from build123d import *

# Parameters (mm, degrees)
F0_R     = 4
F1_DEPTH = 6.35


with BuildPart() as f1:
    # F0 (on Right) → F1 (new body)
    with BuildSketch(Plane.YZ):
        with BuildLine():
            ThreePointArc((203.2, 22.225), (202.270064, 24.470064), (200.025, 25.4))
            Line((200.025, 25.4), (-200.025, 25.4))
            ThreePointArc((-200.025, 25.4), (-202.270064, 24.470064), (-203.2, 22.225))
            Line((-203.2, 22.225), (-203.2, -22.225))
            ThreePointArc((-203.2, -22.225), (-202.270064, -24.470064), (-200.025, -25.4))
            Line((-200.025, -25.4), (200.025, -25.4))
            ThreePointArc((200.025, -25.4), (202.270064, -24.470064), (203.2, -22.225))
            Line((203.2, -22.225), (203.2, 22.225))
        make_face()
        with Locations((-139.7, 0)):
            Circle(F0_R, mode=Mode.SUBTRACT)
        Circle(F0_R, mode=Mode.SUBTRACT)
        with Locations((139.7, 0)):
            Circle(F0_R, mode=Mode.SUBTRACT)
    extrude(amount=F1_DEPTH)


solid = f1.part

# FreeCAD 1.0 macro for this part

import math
import FreeCAD as App
import Part
import Sketcher
from FreeCAD import Vector
Q = App.Units.Quantity

doc = App.newDocument("Part")
body = doc.addObject("PartDesign::Body", "Body")

sketch1 = body.newObject("Sketcher::SketchObject", "Sketch")
sketch1.AttachmentSupport = (doc.getObject("YZ_Plane"), [""])
sketch1.MapMode = "FlatFace"
sketch1.addGeometry(Part.ArcOfCircle(Part.Circle(Vector(200.025, 22.225, 0), Vector(0, 0, 1), 3.175), math.radians(0.000002), math.radians(89.999998)), False)
sketch1.addGeometry(Part.LineSegment(Vector(200.025, 25.4, 0), Vector(-200.025, 25.4, 0)), False)
sketch1.addGeometry(Part.ArcOfCircle(Part.Circle(Vector(-200.025, 22.225, 0), Vector(0, 0, 1), 3.175), math.radians(90.000002), math.radians(179.999998)), False)
sketch1.addGeometry(Part.LineSegment(Vector(-203.2, 22.225, 0), Vector(-203.2, -22.225, 0)), False)
sketch1.addGeometry(Part.ArcOfCircle(Part.Circle(Vector(-200.025, -22.225, 0), Vector(0, 0, 1), 3.175), math.radians(-179.999998), math.radians(-90.000002)), False)
sketch1.addGeometry(Part.LineSegment(Vector(-200.025, -25.4, 0), Vector(200.025, -25.4, 0)), False)
sketch1.addGeometry(Part.ArcOfCircle(Part.Circle(Vector(200.025, -22.225, 0), Vector(0, 0, 1), 3.175), math.radians(-89.999998), math.radians(-0.000002)), False)
sketch1.addGeometry(Part.LineSegment(Vector(203.2, -22.225, 0), Vector(203.2, 22.225, 0)), False)
sketch1.addGeometry(Part.Circle(Vector(-139.7, 0, 0), Vector(0, 0, 1), 4), False)
sketch1.addGeometry(Part.Circle(Vector(0, 0, 0), Vector(0, 0, 1), 4), False)
sketch1.addGeometry(Part.Circle(Vector(139.7, 0, 0), Vector(0, 0, 1), 4), False)
sketch1.addConstraint(Sketcher.Constraint("Tangent", 0, 2, 1, 1))
sketch1.addConstraint(Sketcher.Constraint("Tangent", 1, 2, 2, 1))
sketch1.addConstraint(Sketcher.Constraint("Tangent", 2, 2, 3, 1))
sketch1.addConstraint(Sketcher.Constraint("Tangent", 3, 2, 4, 1))
sketch1.addConstraint(Sketcher.Constraint("Tangent", 4, 2, 5, 1))
sketch1.addConstraint(Sketcher.Constraint("Tangent", 5, 2, 6, 1))
sketch1.addConstraint(Sketcher.Constraint("Tangent", 6, 2, 7, 1))
sketch1.addConstraint(Sketcher.Constraint("Tangent", 7, 2, 0, 1))
sketch1.addConstraint(Sketcher.Constraint("Horizontal", 1))
sketch1.addConstraint(Sketcher.Constraint("Vertical", 3))
sketch1.addConstraint(Sketcher.Constraint("Horizontal", 5))
sketch1.addConstraint(Sketcher.Constraint("Vertical", 7))
sketch1.addConstraint(Sketcher.Constraint("Coincident", 9, 3, -1, 1))
sketch1.addConstraint(Sketcher.Constraint("Equal", 0, 2))
sketch1.addConstraint(Sketcher.Constraint("Equal", 2, 4))
sketch1.addConstraint(Sketcher.Constraint("Equal", 4, 6))
sketch1.addConstraint(Sketcher.Constraint("Equal", 8, 9))
sketch1.addConstraint(Sketcher.Constraint("Equal", 9, 10))
sketch1.addConstraint(Sketcher.Constraint("Symmetric", 0, 3, 4, 3, -1, 1))
sketch1.addConstraint(Sketcher.Constraint("Symmetric", 8, 3, 10, 3, -1, 1))
sketch1.addConstraint(Sketcher.Constraint("PointOnObject", 8, 3, -1))
sketch1.addConstraint(Sketcher.Constraint("DistanceY", -1, 1, 0, 2, Q("1 in")))
sketch1.addConstraint(Sketcher.Constraint("DistanceX", 2, 2, -1, 1, Q("8 in")))
sketch1.addConstraint(Sketcher.Constraint("Radius", 0, Q("0.125 in")))
sketch1.addConstraint(Sketcher.Constraint("DistanceX", 8, 3, 10, 3, Q("11 in")))
sketch1.addConstraint(Sketcher.Constraint("Diameter", 8, Q("8 mm")))
pad1 = body.newObject("PartDesign::Pad", "Pad")
pad1.Profile = sketch1
pad1.Length = Q("0.25 in")

doc.recompute()
